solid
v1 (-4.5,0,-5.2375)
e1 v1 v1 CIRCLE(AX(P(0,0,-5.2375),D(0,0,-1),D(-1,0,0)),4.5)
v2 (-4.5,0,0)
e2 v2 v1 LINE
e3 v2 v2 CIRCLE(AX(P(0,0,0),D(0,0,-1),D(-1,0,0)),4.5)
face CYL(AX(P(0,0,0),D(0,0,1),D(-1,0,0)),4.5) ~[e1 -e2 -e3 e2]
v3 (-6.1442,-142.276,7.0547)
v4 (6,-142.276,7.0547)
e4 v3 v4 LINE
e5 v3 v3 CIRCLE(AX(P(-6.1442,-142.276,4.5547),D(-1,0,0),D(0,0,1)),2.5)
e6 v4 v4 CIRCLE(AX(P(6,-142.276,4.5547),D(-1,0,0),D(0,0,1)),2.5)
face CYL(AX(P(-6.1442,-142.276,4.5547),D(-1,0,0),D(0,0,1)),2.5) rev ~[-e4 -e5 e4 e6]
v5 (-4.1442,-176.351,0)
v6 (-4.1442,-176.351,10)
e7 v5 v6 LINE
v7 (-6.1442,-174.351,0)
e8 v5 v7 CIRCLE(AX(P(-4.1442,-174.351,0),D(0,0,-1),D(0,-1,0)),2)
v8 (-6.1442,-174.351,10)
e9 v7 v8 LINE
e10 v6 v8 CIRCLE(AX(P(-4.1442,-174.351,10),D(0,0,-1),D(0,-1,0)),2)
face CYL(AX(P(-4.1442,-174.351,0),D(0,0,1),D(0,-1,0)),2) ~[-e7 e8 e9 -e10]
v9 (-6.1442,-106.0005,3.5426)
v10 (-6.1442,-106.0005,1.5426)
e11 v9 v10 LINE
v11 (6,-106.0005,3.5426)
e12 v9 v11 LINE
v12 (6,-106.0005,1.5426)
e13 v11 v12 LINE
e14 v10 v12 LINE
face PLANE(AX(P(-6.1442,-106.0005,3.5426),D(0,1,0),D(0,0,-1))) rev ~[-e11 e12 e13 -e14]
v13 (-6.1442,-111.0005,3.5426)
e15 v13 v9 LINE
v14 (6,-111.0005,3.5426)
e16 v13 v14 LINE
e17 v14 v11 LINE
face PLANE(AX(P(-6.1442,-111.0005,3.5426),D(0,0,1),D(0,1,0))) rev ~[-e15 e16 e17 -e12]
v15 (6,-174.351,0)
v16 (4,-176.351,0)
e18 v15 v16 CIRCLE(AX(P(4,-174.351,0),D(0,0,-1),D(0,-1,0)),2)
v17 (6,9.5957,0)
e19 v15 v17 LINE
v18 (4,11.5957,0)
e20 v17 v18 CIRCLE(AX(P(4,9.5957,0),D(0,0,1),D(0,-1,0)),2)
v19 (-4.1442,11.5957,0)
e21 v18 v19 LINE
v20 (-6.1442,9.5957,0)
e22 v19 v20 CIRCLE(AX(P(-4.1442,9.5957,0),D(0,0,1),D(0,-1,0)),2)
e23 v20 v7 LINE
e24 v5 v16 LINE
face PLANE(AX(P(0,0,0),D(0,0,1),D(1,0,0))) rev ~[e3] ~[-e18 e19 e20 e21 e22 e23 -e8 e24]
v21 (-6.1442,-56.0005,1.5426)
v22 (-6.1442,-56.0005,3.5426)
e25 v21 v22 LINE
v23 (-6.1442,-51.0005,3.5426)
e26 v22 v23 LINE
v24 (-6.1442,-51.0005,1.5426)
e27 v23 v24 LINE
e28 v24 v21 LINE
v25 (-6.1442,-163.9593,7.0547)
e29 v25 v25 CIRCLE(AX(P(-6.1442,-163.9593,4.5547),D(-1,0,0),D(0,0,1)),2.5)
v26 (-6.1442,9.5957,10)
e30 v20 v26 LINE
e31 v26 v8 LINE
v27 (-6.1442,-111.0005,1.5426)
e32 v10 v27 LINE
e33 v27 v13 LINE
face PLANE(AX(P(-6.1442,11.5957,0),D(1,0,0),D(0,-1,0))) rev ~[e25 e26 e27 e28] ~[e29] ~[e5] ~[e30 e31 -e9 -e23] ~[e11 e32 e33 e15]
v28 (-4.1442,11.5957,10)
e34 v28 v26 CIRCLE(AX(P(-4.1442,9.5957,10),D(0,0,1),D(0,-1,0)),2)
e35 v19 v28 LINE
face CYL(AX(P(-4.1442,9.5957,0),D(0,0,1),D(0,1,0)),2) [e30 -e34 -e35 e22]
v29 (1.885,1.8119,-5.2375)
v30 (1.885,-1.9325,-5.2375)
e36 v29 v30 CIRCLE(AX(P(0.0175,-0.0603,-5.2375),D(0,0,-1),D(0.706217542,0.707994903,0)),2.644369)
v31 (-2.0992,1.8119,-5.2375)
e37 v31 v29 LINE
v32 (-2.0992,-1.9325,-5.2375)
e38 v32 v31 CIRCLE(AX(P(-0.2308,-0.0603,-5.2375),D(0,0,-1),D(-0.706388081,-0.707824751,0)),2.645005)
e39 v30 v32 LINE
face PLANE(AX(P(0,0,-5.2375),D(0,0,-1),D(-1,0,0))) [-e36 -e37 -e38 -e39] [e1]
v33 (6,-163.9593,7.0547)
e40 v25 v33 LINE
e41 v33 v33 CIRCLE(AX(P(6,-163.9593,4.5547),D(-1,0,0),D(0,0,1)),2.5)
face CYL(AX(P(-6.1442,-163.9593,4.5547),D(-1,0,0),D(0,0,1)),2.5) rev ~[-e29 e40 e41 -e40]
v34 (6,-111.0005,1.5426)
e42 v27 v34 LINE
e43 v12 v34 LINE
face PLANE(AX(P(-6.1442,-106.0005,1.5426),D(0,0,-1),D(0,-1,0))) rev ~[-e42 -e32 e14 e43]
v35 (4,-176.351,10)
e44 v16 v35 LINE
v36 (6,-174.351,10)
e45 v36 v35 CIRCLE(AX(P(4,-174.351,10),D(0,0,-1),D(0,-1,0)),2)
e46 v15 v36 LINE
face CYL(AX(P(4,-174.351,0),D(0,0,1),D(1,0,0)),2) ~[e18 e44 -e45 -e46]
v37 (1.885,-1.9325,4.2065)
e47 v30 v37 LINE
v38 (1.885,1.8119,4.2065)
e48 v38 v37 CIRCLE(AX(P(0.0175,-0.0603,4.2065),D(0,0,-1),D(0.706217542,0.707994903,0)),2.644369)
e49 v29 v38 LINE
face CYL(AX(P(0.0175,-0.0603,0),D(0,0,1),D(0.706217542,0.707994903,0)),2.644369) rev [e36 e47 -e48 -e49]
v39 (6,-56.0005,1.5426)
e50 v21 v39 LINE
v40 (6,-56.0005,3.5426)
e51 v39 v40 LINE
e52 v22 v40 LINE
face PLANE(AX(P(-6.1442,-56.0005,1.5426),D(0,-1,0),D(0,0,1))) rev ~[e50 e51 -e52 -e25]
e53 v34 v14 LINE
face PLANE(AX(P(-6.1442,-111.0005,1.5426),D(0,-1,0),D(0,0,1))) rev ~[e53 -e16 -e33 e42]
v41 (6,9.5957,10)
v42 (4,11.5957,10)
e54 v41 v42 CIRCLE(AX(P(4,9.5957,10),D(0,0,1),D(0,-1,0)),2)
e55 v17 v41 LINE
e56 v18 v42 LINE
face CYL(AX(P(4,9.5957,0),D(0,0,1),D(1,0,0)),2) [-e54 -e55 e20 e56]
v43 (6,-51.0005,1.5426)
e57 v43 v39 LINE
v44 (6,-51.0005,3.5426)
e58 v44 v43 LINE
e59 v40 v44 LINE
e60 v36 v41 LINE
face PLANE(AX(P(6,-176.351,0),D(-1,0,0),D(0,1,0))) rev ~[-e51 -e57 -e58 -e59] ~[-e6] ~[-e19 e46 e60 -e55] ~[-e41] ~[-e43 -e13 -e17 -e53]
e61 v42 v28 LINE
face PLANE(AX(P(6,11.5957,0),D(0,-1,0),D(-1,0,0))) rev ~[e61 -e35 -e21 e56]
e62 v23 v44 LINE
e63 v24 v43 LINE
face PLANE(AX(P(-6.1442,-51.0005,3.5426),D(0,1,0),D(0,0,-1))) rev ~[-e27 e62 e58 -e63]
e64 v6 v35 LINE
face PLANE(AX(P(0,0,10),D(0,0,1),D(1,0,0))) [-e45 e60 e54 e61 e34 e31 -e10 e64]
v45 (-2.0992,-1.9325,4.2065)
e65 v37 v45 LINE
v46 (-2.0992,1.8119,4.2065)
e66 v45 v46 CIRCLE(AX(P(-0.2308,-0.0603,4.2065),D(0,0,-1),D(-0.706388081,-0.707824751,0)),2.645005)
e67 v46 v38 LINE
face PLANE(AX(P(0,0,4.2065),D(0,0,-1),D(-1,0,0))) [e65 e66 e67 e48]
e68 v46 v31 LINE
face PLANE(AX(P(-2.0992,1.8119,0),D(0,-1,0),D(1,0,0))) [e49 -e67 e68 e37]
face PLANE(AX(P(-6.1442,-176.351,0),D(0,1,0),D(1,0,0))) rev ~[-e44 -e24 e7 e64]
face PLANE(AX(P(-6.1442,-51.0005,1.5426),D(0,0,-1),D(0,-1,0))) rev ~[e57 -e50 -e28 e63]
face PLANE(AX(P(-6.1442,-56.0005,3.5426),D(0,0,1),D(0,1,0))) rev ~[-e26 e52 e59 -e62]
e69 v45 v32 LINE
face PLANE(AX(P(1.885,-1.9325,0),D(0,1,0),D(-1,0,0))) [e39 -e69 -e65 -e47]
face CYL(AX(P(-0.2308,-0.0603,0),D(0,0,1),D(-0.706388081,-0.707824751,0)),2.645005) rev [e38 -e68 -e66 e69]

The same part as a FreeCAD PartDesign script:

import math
import FreeCAD as App
import Part
import Sketcher

V = App.Vector


def edges_at(feature, points):
    """Names of the edges that pass closest to the given points."""
    edges = feature.Shape.Edges
    near = lambda p: min(range(len(edges)), key=lambda i: edges[i].distToShape(Part.Vertex(*p))[0])
    return sorted({f"Edge{near(p) + 1}" for p in points})

doc = App.newDocument("Part")
body = doc.addObject("PartDesign::Body", "Body")

sketch1 = doc.addObject("Sketcher::SketchObject", "Sketch")
body.addObject(sketch1)
sketch1.AttachmentSupport = (doc.XY_Plane, [""])
sketch1.MapMode = "FlatFace"
sketch1.addGeometry([
    Part.LineSegment(V(6, -176.351, 0), V(6, 11.5957, 0)),
    Part.LineSegment(V(6, 11.5957, 0), V(-6.1442, 11.5957, 0)),
    Part.LineSegment(V(-6.1442, 11.5957, 0), V(-6.1442, -176.351, 0)),
    Part.LineSegment(V(-6.1442, -176.351, 0), V(6, -176.351, 0)),
    Part.ArcOfCircle(Part.Circle(V(-0.6409, -0.043, 0), V(0, 0, 1), 2.383565), math.radians(125.895356), math.radians(234.104644)),
    Part.LineSegment(V(-2.0384, 1.8879, 0), V(2.0592, 1.8879, 0)),
    Part.ArcOfCircle(Part.Circle(V(-0.1442, -0.043, 0), V(0, 0, 1), 2.929735), math.radians(-41.228975), math.radians(41.228975)),
    Part.LineSegment(V(2.0592, -1.9739, 0), V(-2.0384, -1.9739, 0)),
], False)
sketch1.addConstraint([
    Sketcher.Constraint("Coincident", 0, 2, 1, 1),
    Sketcher.Constraint("Coincident", 1, 2, 2, 1),
    Sketcher.Constraint("Coincident", 2, 2, 3, 1),
    Sketcher.Constraint("Coincident", 3, 2, 0, 1),
    Sketcher.Constraint("Coincident", 4, 1, 5, 1),
    Sketcher.Constraint("Coincident", 5, 2, 6, 2),
    Sketcher.Constraint("Coincident", 6, 1, 7, 1),
    Sketcher.Constraint("Coincident", 7, 2, 4, 2),
    Sketcher.Constraint("Vertical", 0),
    Sketcher.Constraint("Horizontal", 1),
    Sketcher.Constraint("Vertical", 2),
    Sketcher.Constraint("Horizontal", 3),
    Sketcher.Constraint("Horizontal", 5),
    Sketcher.Constraint("Horizontal", 7),
    Sketcher.Constraint("Horizontal", 4, 3, 6, 3),
    Sketcher.Constraint("Vertical", 5, 2, 6, 1),
    Sketcher.Constraint("DistanceX", -1, 1, 0, 2, 6.0),
    Sketcher.Constraint("DistanceX", 1, 2, 6, 3, 6.0),
    Sketcher.Constraint("Radius", 4, 2.3836),
    Sketcher.Constraint("Radius", 6, 2.9297),
    Sketcher.Constraint("DistanceX", 4, 3, 5, 2, 2.7),
    Sketcher.Constraint("DistanceX", 1, 2, 1, 1, 12.1442),
    Sketcher.Constraint("DistanceX", 5, 1, 5, 2, 4.0976),
    Sketcher.Constraint("DistanceY", 0, 1, 0, 2, 187.9467),
    Sketcher.Constraint("DistanceY", 4, 3, -1, 1, 0.043),
    Sketcher.Constraint("DistanceY", 2, 2, -1, 1, 176.351),
])
pad1 = doc.addObject("PartDesign::Pad", "Pad")
body.addObject(pad1)
pad1.Profile = sketch1
pad1.Length = 10

sketch2 = doc.addObject("Sketcher::SketchObject", "Sketch001")
body.addObject(sketch2)
sketch2.AttachmentSupport = (doc.YZ_Plane, [""])
sketch2.MapMode = "FlatFace"
sketch2.AttachmentOffset = App.Placement(V(0, 0, -6.1442), App.Rotation())
sketch2.addGeometry([
    Part.LineSegment(V(-56.0005, 3.5426, 0), V(-51.0005, 3.5426, 0)),
    Part.LineSegment(V(-51.0005, 3.5426, 0), V(-51.0005, 1.5426, 0)),
    Part.LineSegment(V(-51.0005, 1.5426, 0), V(-56.0005, 1.5426, 0)),
    Part.LineSegment(V(-56.0005, 1.5426, 0), V(-56.0005, 3.5426, 0)),
    Part.LineSegment(V(-111.0005, 3.5426, 0), V(-106.0005, 3.5426, 0)),
    Part.LineSegment(V(-106.0005, 3.5426, 0), V(-106.0005, 1.5426, 0)),
    Part.LineSegment(V(-106.0005, 1.5426, 0), V(-111.0005, 1.5426, 0)),
    Part.LineSegment(V(-111.0005, 1.5426, 0), V(-111.0005, 3.5426, 0)),
    Part.Circle(V(-142.276, 4.5547, 0), V(0, 0, 1), 2.5),
    Part.Circle(V(-163.9593, 4.5547, 0), V(0, 0, 1), 2.5),
], False)
sketch2.addConstraint([
    Sketcher.Constraint("Coincident", 0, 2, 1, 1),
    Sketcher.Constraint("Coincident", 1, 2, 2, 1),
    Sketcher.Constraint("Coincident", 2, 2, 3, 1),
    Sketcher.Constraint("Coincident", 3, 2, 0, 1),
    Sketcher.Constraint("Coincident", 4, 2, 5, 1),
    Sketcher.Constraint("Coincident", 5, 2, 6, 1),
    Sketcher.Constraint("Coincident", 6, 2, 7, 1),
    Sketcher.Constraint("Coincident", 7, 2, 4, 1),
    Sketcher.Constraint("Horizontal", 0),
    Sketcher.Constraint("Vertical", 1),
    Sketcher.Constraint("Horizontal", 2),
    Sketcher.Constraint("Vertical", 3),
    Sketcher.Constraint("Horizontal", 4),
    Sketcher.Constraint("Vertical", 5),
    Sketcher.Constraint("Horizontal", 6),
    Sketcher.Constraint("Vertical", 7),
    Sketcher.Constraint("Equal", 8, 9),
    Sketcher.Constraint("Horizontal", 8, 3, 9, 3),
    Sketcher.Constraint("Horizontal", 3, 2, 4, 2),
    Sketcher.Constraint("Horizontal", 2, 2, 5, 2),
    Sketcher.Constraint("Equal", 2, 4),
    Sketcher.Constraint("Diameter", 8, 5.0),
    Sketcher.Constraint("DistanceX", 0, 1, 0, 2, 5.0),
    Sketcher.Constraint("DistanceY", 1, 2, 1, 1, 2.0),
    Sketcher.Constraint("DistanceX", 4, 2, 3, 2, 50.0),
    Sketcher.Constraint("DistanceX", 8, 3, -1, 1, 142.276),
    Sketcher.Constraint("DistanceY", 0, 2, 8, 3, 1.012),
    Sketcher.Constraint("DistanceY", -1, 1, 8, 3, 4.5547),
    Sketcher.Constraint("DistanceX", 9, 3, -1, 1, 163.9593),
    Sketcher.Constraint("DistanceX", 0, 2, -1, 1, 51.0005),
])
pocket1 = doc.addObject("PartDesign::Pocket", "Pocket")
body.addObject(pocket1)
pocket1.Profile = sketch2
pocket1.Type = "ThroughAll"
pocket1.Reversed = True

sketch3 = doc.addObject("Sketcher::SketchObject", "Sketch002")
body.addObject(sketch3)
sketch3.AttachmentSupport = (doc.XY_Plane, [""])
sketch3.MapMode = "FlatFace"
sketch3.addGeometry(Part.Circle(V(0, 0, 0), V(0, 0, 1), 4.5), False)
sketch3.addConstraint([
    Sketcher.Constraint("Coincident", 0, 3, -1, 1),
    Sketcher.Constraint("Diameter", 0, 9.0),
])
pad2 = doc.addObject("PartDesign::Pad", "Pad001")
body.addObject(pad2)
pad2.Profile = sketch3
pad2.Type = "TwoLengths"
pad2.Length = 5.2375
pad2.Length2 = 10
pad2.Reversed = True

sketch4 = doc.addObject("Sketcher::SketchObject", "Sketch003")
body.addObject(sketch4)
sketch4.AttachmentSupport = (doc.XY_Plane, [""])
sketch4.MapMode = "FlatFace"
sketch4.addGeometry([
    Part.LineSegment(V(1.885, -1.9325, 0), V(-2.0992, -1.9325, 0)),
    Part.ArcOfCircle(Part.Circle(V(-0.2308, -0.0603, 0), V(0, 0, 1), 2.645005), math.radians(134.941794), math.radians(225.058206)),
    Part.LineSegment(V(-2.0992, 1.8119, 0), V(1.885, 1.8119, 0)),
    Part.ArcOfCircle(Part.Circle(V(0.0175, -0.0603, 0), V(0, 0, 1), 2.644369), math.radians(-45.072008), math.radians(45.072008)),
], False)
sketch4.addConstraint([
    Sketcher.Constraint("Coincident", 0, 2, 1, 2),
    Sketcher.Constraint("Coincident", 1, 1, 2, 1),
    Sketcher.Constraint("Coincident", 2, 2, 3, 2),
    Sketcher.Constraint("Coincident", 3, 1, 0, 1),
    Sketcher.Constraint("Horizontal", 0),
    Sketcher.Constraint("Horizontal", 2),
    Sketcher.Constraint("Horizontal", 1, 3, 3, 3),
    Sketcher.Constraint("Vertical", 0, 2, 1, 1),
    Sketcher.Constraint("Radius", 1, 2.645),
    Sketcher.Constraint("Radius", 3, 2.6444),
    Sketcher.Constraint("DistanceX", 0, 2, 0, 1, 3.9842),
    Sketcher.Constraint("DistanceY", -1, 1, 1, 1, 1.812),
    Sketcher.Constraint("DistanceX", -1, 1, 2, 2, 1.885),
    Sketcher.Constraint("DistanceX", 1, 3, -1, 1, 0.2308),
])
pocket2 = doc.addObject("PartDesign::Pocket", "Pocket001")
body.addObject(pocket2)
pocket2.Profile = sketch4
pocket2.Type = "TwoLengths"
pocket2.Length = 5.2375
pocket2.Length2 = 4.2065
doc.recompute()

fillet = doc.addObject("PartDesign::Fillet", "Fillet")
body.addObject(fillet)
fillet.Base = (pocket2, edges_at(pocket2, [
    (6, 11.596, 5),
    (-6.144, 11.596, 5),
    (-6.144, -176.351, 5),
    (6, -176.351, 5),
]))
fillet.Radius = 2

doc.recompute()
